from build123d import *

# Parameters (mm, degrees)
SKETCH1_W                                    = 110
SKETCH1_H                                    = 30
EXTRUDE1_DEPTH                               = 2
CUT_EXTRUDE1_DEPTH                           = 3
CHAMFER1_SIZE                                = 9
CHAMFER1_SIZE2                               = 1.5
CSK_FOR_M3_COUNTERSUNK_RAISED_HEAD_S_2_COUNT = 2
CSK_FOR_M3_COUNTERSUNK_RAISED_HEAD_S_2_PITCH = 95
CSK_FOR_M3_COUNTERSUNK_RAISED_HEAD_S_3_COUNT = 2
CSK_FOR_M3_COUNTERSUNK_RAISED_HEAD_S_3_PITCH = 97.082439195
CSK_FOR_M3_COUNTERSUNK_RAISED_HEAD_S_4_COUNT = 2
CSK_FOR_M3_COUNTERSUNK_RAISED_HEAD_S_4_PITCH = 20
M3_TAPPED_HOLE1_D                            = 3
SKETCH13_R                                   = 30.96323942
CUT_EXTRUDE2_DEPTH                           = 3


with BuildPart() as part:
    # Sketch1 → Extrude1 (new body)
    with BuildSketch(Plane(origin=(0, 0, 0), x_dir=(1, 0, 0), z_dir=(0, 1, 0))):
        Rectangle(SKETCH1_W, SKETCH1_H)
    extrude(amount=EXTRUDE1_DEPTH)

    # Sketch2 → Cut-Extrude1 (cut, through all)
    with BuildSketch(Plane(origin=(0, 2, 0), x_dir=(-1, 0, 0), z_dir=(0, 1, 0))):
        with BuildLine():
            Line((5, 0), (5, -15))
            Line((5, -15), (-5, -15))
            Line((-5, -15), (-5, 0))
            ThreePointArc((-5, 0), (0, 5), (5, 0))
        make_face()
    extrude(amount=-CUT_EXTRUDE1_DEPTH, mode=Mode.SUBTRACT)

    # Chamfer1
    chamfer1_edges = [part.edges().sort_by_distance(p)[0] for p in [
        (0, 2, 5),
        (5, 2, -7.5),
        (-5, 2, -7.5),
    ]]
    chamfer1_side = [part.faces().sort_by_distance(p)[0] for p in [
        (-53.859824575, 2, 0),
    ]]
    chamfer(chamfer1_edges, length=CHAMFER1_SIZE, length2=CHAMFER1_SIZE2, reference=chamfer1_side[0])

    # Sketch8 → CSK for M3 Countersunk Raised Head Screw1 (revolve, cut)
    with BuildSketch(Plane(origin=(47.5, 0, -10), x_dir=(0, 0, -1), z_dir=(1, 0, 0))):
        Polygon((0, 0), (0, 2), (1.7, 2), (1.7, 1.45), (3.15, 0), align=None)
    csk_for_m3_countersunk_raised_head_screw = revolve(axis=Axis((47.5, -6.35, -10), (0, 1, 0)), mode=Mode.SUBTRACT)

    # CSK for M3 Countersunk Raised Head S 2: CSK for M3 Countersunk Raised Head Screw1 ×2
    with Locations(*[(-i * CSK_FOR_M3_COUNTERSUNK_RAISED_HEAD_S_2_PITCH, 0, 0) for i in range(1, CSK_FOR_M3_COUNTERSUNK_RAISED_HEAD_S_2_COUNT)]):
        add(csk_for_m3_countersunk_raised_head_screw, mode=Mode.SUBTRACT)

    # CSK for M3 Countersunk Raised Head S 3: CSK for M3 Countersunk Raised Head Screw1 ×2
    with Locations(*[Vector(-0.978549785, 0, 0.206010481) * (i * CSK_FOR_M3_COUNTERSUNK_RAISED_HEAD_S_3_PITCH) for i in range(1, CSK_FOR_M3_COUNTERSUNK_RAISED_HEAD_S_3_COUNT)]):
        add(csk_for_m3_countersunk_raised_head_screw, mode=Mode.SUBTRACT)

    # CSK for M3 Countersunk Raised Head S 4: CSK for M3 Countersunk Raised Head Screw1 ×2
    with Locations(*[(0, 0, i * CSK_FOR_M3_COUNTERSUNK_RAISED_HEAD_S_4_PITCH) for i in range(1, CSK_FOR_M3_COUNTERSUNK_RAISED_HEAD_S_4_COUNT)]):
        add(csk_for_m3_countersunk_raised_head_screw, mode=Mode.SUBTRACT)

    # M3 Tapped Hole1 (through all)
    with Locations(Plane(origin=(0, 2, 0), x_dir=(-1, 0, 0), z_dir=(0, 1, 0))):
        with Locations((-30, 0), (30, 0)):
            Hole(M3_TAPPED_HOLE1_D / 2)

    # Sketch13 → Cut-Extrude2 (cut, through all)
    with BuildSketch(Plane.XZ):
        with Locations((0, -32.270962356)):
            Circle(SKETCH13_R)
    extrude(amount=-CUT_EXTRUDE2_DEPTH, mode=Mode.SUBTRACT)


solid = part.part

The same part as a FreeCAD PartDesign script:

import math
import FreeCAD as App
import Part
import Sketcher

V = App.Vector
Q = App.Units.Quantity


def edges_at(feature, points):
    """Names of the edges that pass closest to the given points."""
    edges = feature.Shape.Edges
    near = lambda p: min(range(len(edges)), key=lambda i: edges[i].distToShape(Part.Vertex(*p))[0])
    return sorted({f"Edge{near(p) + 1}" for p in points})

doc = App.newDocument("Part")
body = doc.addObject("PartDesign::Body", "Body")

# Sketch on XZ plane
sketch1 = doc.addObject("Sketcher::SketchObject", "Sketch")
body.addObject(sketch1)
sketch1.AttachmentSupport = (doc.XZ_Plane, [""])
sketch1.MapMode = "FlatFace"
sketch1.addGeometry([
    Part.LineSegment(V(-55, -15, 0), V(-55, 15, 0)),
    Part.LineSegment(V(-55, 15, 0), V(55, 15, 0)),
    Part.LineSegment(V(55, 15, 0), V(55, -15, 0)),
    Part.LineSegment(V(55, -15, 0), V(-55, -15, 0)),
], False)
sketch1.addConstraint([
    Sketcher.Constraint("Coincident", 0, 2, 1, 1),
    Sketcher.Constraint("Coincident", 1, 2, 2, 1),
    Sketcher.Constraint("Coincident", 2, 2, 3, 1),
    Sketcher.Constraint("Coincident", 3, 2, 0, 1),
    Sketcher.Constraint("Vertical", 0),
    Sketcher.Constraint("Horizontal", 1),
    Sketcher.Constraint("Vertical", 2),
    Sketcher.Constraint("Horizontal", 3),
    Sketcher.Constraint("Symmetric", 0, 2, 2, 2, -1, 1),
    Sketcher.Constraint("DistanceX", 1, 1, 1, 2, 110.0),
    Sketcher.Constraint("DistanceY", 0, 1, 0, 2, 30.0),
])
pad1 = doc.addObject("PartDesign::Pad", "Pad")
body.addObject(pad1)
pad1.Profile = sketch1
pad1.Length = 2
pad1.Reversed = True

# Sketch on XZ plane
sketch2 = doc.addObject("Sketcher::SketchObject", "Sketch001")
body.addObject(sketch2)
sketch2.AttachmentSupport = (doc.XZ_Plane, [""])
sketch2.MapMode = "FlatFace"
sketch2.AttachmentOffset = App.Placement(V(0, 0, -2), App.Rotation())
sketch2.addGeometry([
    Part.LineSegment(V(-5, -15, 0), V(-5, 0, 0)),
    Part.ArcOfCircle(Part.Circle(V(0, 0, 0), V(0, 0, 1), 5), math.radians(0), math.radians(180)),
    Part.LineSegment(V(5, 0, 0), V(5, -15, 0)),
    Part.LineSegment(V(5, -15, 0), V(-5, -15, 0)),
], False)
sketch2.addConstraint([
    Sketcher.Constraint("Tangent", 0, 2, 1, 2),
    Sketcher.Constraint("Tangent", 1, 1, 2, 1),
    Sketcher.Constraint("Coincident", 2, 2, 3, 1),
    Sketcher.Constraint("Coincident", 3, 2, 0, 1),
    Sketcher.Constraint("Vertical", 0),
    Sketcher.Constraint("Vertical", 2),
    Sketcher.Constraint("Horizontal", 3),
    Sketcher.Constraint("Coincident", 1, 3, -1, 1),
    Sketcher.Constraint("Radius", 1, 5.0),
    Sketcher.Constraint("DistanceY", 0, 1, 0, 2, 15.0),
])
pocket1 = doc.addObject("PartDesign::Pocket", "Pocket")
body.addObject(pocket1)
pocket1.Profile = sketch2
pocket1.Type = "ThroughAll"
pocket1.Reversed = True
doc.recompute()

chamfer = doc.addObject("PartDesign::Chamfer", "Chamfer")
body.addObject(chamfer)
chamfer.Base = (pocket1, edges_at(pocket1, [(0, 2, 5), (5, 2, -7.5), (-5, 2, -7.5)]))
chamfer.ChamferType = "Two distances"
chamfer.Size = 9
chamfer.Size2 = 1.5

# Sketch on YZ plane
sketch3 = doc.addObject("Sketcher::SketchObject", "Sketch002")
body.addObject(sketch3)
sketch3.AttachmentSupport = (doc.YZ_Plane, [""])
sketch3.MapMode = "FlatFace"
sketch3.AttachmentOffset = App.Placement(V(0, 0, 47.5), App.Rotation())
sketch3.addGeometry([
    Part.LineSegment(V(2, -10, 0), V(0, -10, 0)),  # 0
    Part.LineSegment(V(0, -10, 0), V(0, -13.2, 0)),  # 1
    Part.LineSegment(V(0, -13.2, 0), V(1.4, -11.7, 0)),  # 2
    Part.LineSegment(V(1.4, -11.7, 0), V(2, -11.7, 0)),  # 3
    Part.LineSegment(V(2, -11.7, 0), V(2, -10, 0)),  # 4
], False)
sketch3.addGeometry(Part.LineSegment(V(0, -10, 0), V(2, -10, 0)), True)  # axis
sketch3.addConstraint([
    Sketcher.Constraint("Coincident", 0, 2, 1, 1),
    Sketcher.Constraint("Coincident", 1, 2, 2, 1),
    Sketcher.Constraint("Coincident", 2, 2, 3, 1),
    Sketcher.Constraint("Coincident", 3, 2, 4, 1),
    Sketcher.Constraint("Coincident", 4, 2, 0, 1),
    Sketcher.Constraint("Horizontal", 0),
    Sketcher.Constraint("Vertical", 1),
    Sketcher.Constraint("Horizontal", 3),
    Sketcher.Constraint("Vertical", 4),
    Sketcher.Constraint("Horizontal", 5),
    Sketcher.Constraint("Coincident", 5, 1, 0, 2),
    Sketcher.Constraint("PointOnObject", 0, 2, -2),
    Sketcher.Constraint("Vertical", 3, 2, 5, 2),
    Sketcher.Constraint("DistanceX", 0, 2, 0, 1, 2.0),
    Sketcher.Constraint("Angle", 2, Q("45 deg")),
    Sketcher.Constraint("DistanceY", 4, 1, 4, 2, 1.7),
    Sketcher.Constraint("DistanceY", 0, 2, -1, 1, 10.0),
    Sketcher.Constraint("DistanceX", 3, 1, 3, 2, 0.55),
])
groove = doc.addObject("PartDesign::Groove", "Groove")
body.addObject(groove)
groove.Profile = sketch3
groove.ReferenceAxis = (sketch3, ["Axis0"])
groove.Angle = 360
doc.recompute()

linearpattern = doc.addObject("PartDesign::LinearPattern", "LinearPattern")
body.addObject(linearpattern)
linearpattern.Originals = [groove]
linearpattern.Direction = (doc.X_Axis, [""])
linearpattern.Mode = "offset"
linearpattern.Offset = 95
linearpattern.Occurrences = 2
linearpattern.Reversed = True
body.Tip = linearpattern
doc.recompute()

datumline = doc.addObject("PartDesign::Line", "DatumLine")
body.addObject(datumline)
datumline.Placement = App.Placement(V(0, 0, 0), App.Rotation(V(0, 0, 1), V(-0.978549785, 0, 0.206010481)))
linearpattern2 = doc.addObject("PartDesign::LinearPattern", "LinearPattern001")
body.addObject(linearpattern2)
linearpattern2.Originals = [groove]
linearpattern2.Direction = (datumline, [""])
linearpattern2.Mode = "offset"
linearpattern2.Offset = 97.082439
linearpattern2.Occurrences = 2
body.Tip = linearpattern2
doc.recompute()

linearpattern3 = doc.addObject("PartDesign::LinearPattern", "LinearPattern002")
body.addObject(linearpattern3)
linearpattern3.Originals = [groove]
linearpattern3.Direction = (doc.Z_Axis, [""])
linearpattern3.Mode = "offset"
linearpattern3.Offset = 20
linearpattern3.Occurrences = 2
body.Tip = linearpattern3

# Sketch on XZ plane
sketch4 = doc.addObject("Sketcher::SketchObject", "Sketch003")
body.addObject(sketch4)
sketch4.AttachmentSupport = (doc.XZ_Plane, [""])
sketch4.MapMode = "FlatFace"
sketch4.AttachmentOffset = App.Placement(V(0, 0, -2), App.Rotation())
sketch4.addGeometry([
    Part.Circle(V(30, 0, 0), V(0, 0, 1), 1.5),
    Part.Circle(V(-30, 0, 0), V(0, 0, 1), 1.5),
], False)
sketch4.addConstraint([
    Sketcher.Constraint("Equal", 0, 1),
    Sketcher.Constraint("Symmetric", 0, 3, 1, 3, -1, 1),
    Sketcher.Constraint("PointOnObject", 0, 3, -1),
    Sketcher.Constraint("Diameter", 0, 3.0),
    Sketcher.Constraint("DistanceX", -1, 1, 0, 3, 30.0),
])
doc.recompute()
hole = doc.addObject("PartDesign::Hole", "Hole")
body.addObject(hole)
hole.Profile = sketch4
hole.ThreadType = "None"
hole.Diameter = 3
hole.DepthType = "ThroughAll"
hole.Reversed = True

# Sketch on XZ plane
sketch5 = doc.addObject("Sketcher::SketchObject", "Sketch004")
body.addObject(sketch5)
sketch5.AttachmentSupport = (doc.XZ_Plane, [""])
sketch5.MapMode = "FlatFace"
sketch5.addGeometry(Part.Circle(V(0, -32, 0), V(0, 0, 1), 31), False)
sketch5.addConstraint([
    Sketcher.Constraint("PointOnObject", 0, 3, -2),
    Sketcher.Constraint("Diameter", 0, 61.926479),
    Sketcher.Constraint("DistanceY", 0, 3, -1, 1, 32.270962),
])
pocket2 = doc.addObject("PartDesign::Pocket", "Pocket001")
body.addObject(pocket2)
pocket2.Profile = sketch5
pocket2.Type = "ThroughAll"

doc.recompute()
